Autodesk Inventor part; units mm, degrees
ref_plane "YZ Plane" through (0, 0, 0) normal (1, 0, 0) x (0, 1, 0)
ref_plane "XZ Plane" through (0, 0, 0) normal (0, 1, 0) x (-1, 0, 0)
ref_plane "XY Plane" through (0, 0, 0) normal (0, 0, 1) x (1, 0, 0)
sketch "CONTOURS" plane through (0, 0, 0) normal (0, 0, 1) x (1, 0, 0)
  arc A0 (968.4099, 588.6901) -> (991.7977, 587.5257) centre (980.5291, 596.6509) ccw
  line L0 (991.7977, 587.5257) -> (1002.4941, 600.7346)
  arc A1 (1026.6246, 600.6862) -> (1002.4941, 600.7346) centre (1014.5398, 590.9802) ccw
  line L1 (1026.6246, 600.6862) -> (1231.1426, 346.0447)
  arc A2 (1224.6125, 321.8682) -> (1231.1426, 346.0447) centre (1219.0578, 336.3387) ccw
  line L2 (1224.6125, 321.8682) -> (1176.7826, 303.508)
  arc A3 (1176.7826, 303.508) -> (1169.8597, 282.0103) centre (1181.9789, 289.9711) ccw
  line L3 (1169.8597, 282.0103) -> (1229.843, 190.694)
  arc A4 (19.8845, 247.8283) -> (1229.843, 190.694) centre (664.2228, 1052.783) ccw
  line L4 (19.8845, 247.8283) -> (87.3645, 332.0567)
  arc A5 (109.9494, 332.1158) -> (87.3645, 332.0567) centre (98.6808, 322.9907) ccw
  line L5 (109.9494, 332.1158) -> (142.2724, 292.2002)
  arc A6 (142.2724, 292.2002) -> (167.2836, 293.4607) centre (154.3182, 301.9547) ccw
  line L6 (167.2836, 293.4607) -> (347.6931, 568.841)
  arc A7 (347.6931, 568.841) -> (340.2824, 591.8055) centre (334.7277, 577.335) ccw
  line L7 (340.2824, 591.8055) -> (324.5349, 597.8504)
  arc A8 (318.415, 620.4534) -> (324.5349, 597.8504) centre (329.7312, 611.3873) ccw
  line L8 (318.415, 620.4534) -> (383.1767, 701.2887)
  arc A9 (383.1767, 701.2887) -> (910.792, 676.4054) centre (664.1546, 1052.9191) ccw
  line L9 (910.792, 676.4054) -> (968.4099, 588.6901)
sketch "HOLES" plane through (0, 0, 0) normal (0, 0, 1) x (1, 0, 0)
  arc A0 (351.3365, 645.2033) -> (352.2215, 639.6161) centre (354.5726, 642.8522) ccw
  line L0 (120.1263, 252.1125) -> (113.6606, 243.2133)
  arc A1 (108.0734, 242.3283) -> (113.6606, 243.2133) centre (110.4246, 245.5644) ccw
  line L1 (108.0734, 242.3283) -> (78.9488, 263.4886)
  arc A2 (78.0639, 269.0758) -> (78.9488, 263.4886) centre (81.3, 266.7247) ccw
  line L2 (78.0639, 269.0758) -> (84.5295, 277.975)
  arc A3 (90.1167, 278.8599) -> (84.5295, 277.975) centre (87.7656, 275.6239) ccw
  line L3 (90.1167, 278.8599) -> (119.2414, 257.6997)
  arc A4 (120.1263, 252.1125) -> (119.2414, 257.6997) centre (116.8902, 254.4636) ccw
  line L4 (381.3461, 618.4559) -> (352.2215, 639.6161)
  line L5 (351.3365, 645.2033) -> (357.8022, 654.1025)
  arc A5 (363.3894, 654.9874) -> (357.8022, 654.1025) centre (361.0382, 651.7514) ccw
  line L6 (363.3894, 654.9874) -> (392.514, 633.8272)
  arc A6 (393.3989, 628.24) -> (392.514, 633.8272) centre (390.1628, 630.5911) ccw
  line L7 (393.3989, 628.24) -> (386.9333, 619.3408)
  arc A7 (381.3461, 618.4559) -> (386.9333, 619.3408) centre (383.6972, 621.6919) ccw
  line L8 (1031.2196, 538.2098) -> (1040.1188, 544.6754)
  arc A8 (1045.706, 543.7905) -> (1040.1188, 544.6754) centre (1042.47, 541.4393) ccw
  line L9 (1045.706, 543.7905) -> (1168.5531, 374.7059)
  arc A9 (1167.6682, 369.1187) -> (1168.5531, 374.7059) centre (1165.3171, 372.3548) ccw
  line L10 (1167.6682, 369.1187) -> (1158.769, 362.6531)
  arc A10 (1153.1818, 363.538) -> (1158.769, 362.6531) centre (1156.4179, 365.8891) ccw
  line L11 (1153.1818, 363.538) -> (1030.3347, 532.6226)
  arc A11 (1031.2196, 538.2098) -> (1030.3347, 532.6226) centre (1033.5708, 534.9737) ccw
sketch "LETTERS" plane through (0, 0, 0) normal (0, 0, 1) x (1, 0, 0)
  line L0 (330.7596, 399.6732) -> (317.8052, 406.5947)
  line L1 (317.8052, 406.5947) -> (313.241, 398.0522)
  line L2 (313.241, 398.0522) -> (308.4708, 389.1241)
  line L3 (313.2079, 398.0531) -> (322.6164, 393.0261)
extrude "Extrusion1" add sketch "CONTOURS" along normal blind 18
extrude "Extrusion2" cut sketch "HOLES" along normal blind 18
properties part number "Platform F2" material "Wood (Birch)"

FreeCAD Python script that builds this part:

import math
import FreeCAD as App
import Part
import Sketcher
Q = App.Units.Quantity

doc = App.newDocument("Part")
body = doc.addObject("PartDesign::Body", "Body")

sketch1 = body.newObject("Sketcher::SketchObject", "Sketch")
sketch1.AttachmentSupport = (doc.getObject("XY_Plane"), [""])
sketch1.MapMode = "FlatFace"
sketch1.addGeometry([
    Part.ArcOfCircle(Part.Circle(App.Vector(981, 597, 0), App.Vector(0, 0, 1), 14), math.radians(-147), math.radians(-39)),
    Part.LineSegment(App.Vector(968, 589, 0), App.Vector(911, 676, 0)),
    Part.ArcOfCircle(Part.Circle(App.Vector(664, 1053, 0), App.Vector(0, 0, 1), 450), math.radians(-129), math.radians(-57)),
    Part.LineSegment(App.Vector(383, 701, 0), App.Vector(318, 620, 0)),
    Part.ArcOfCircle(Part.Circle(App.Vector(330, 611, 0), App.Vector(0, 0, 1), 15), math.radians(141), math.radians(249)),
    Part.LineSegment(App.Vector(325, 598, 0), App.Vector(340, 592, 0)),
    Part.ArcOfCircle(Part.Circle(App.Vector(335, 577, 0), App.Vector(0, 0, 1), 15), math.radians(-33), math.radians(69)),
    Part.LineSegment(App.Vector(348, 569, 0), App.Vector(167, 293, 0)),
    Part.ArcOfCircle(Part.Circle(App.Vector(154, 302, 0), App.Vector(0, 0, 1), 16), math.radians(-141), math.radians(-33)),
    Part.LineSegment(App.Vector(142, 292, 0), App.Vector(110, 332, 0)),
    Part.ArcOfCircle(Part.Circle(App.Vector(99, 323, 0), App.Vector(0, 0, 1), 14), math.radians(39), math.radians(141)),
    Part.LineSegment(App.Vector(87, 332, 0), App.Vector(20, 248, 0)),
    Part.ArcOfCircle(Part.Circle(App.Vector(664, 1053, 0), App.Vector(0, 0, 1), 1031), math.radians(-129), math.radians(-57)),
    Part.LineSegment(App.Vector(1230, 191, 0), App.Vector(1170, 282, 0)),
    Part.ArcOfCircle(Part.Circle(App.Vector(1182, 290, 0), App.Vector(0, 0, 1), 14), math.radians(111), math.radians(213)),
    Part.LineSegment(App.Vector(1177, 304, 0), App.Vector(1225, 322, 0)),
    Part.ArcOfCircle(Part.Circle(App.Vector(1219, 336, 0), App.Vector(0, 0, 1), 16), math.radians(-69), math.radians(39)),
    Part.LineSegment(App.Vector(1231, 346, 0), App.Vector(1027, 601, 0)),
    Part.ArcOfCircle(Part.Circle(App.Vector(1015, 591, 0), App.Vector(0, 0, 1), 15), math.radians(39), math.radians(141)),
    Part.LineSegment(App.Vector(1002, 601, 0), App.Vector(992, 588, 0)),
], False)
sketch1.addConstraint([
    Sketcher.Constraint("Tangent", 0, 1, 1, 1),
    Sketcher.Constraint("Coincident", 1, 2, 2, 2),
    Sketcher.Constraint("Coincident", 2, 1, 3, 1),
    Sketcher.Constraint("Tangent", 3, 2, 4, 1),
    Sketcher.Constraint("Tangent", 4, 2, 5, 1),
    Sketcher.Constraint("Tangent", 5, 2, 6, 2),
    Sketcher.Constraint("Tangent", 6, 1, 7, 1),
    Sketcher.Constraint("Tangent", 7, 2, 8, 2),
    Sketcher.Constraint("Tangent", 8, 1, 9, 1),
    Sketcher.Constraint("Tangent", 9, 2, 10, 1),
    Sketcher.Constraint("Tangent", 10, 2, 11, 1),
    Sketcher.Constraint("Coincident", 11, 2, 12, 1),
    Sketcher.Constraint("Coincident", 12, 2, 13, 1),
    Sketcher.Constraint("Tangent", 13, 2, 14, 2),
    Sketcher.Constraint("Tangent", 14, 1, 15, 1),
    Sketcher.Constraint("Tangent", 15, 2, 16, 1),
    Sketcher.Constraint("Tangent", 16, 2, 17, 1),
    Sketcher.Constraint("Tangent", 17, 2, 18, 1),
    Sketcher.Constraint("Tangent", 18, 2, 19, 1),
    Sketcher.Constraint("Tangent", 19, 2, 0, 2),
    Sketcher.Constraint("Equal", 0, 4),
    Sketcher.Constraint("Equal", 6, 8),
    Sketcher.Constraint("Equal", 4, 10),
    Sketcher.Constraint("Equal", 10, 14),
    Sketcher.Constraint("Equal", 8, 16),
    Sketcher.Constraint("Equal", 16, 18),
    Sketcher.Constraint("Parallel", 3, 11),
    Sketcher.Constraint("Parallel", 1, 13),
    Sketcher.Constraint("Radius", 0, 14.5),
    Sketcher.Constraint("Radius", 6, 15.5),
    Sketcher.Constraint("Angle", 5, Q("-21 deg")),
    Sketcher.Constraint("Angle", 9, Q("129 deg")),
    Sketcher.Constraint("Angle", 15, Q("21 deg")),
    Sketcher.Constraint("Angle", 19, Q("-129 deg")),
    Sketcher.Constraint("Angle", 1, Q("123.2999 deg")),
    Sketcher.Constraint("Angle", 3, Q("-128.7002 deg")),
    Sketcher.Constraint("Radius", 12, 1031.079),
    Sketcher.Constraint("Angle", 7, Q("-123.23 deg")),
    Sketcher.Constraint("Angle", 17, Q("128.77 deg")),
    Sketcher.Constraint("Radius", 2, 450.1028),
    Sketcher.Constraint("DistanceX", -1, 1, 0, 1, 968.41),
    Sketcher.Constraint("DistanceY", -1, 1, 0, 1, 588.69),
    Sketcher.Constraint("DistanceX", 6, 3, 16, 3, 884.33),
    Sketcher.Constraint("DistanceX", 0, 1, 18, 3, 46.13),
    Sketcher.Constraint("DistanceY", 7, 2, 10, 3, 29.53),
    Sketcher.Constraint("DistanceX", 11, 2, 10, 2, 67.48),
    Sketcher.Constraint("DistanceX", 18, 3, 13, 2, 155.32),
    Sketcher.Constraint("DistanceY", 13, 2, 18, 3, 308.97),
    Sketcher.Constraint("Distance", 3, 103.578),
    Sketcher.Constraint("Distance", 7, 329.214),
    Sketcher.Constraint("Distance", 13, 109.255),
    Sketcher.Constraint("DistanceY", -1, 1, 2, 3, 1052.919),
    Sketcher.Constraint("DistanceY", -1, 1, 6, 3, 577.335),
    Sketcher.Constraint("DistanceX", -1, 1, 1, 2, 910.792),
])
pad1 = body.newObject("PartDesign::Pad", "Pad")
pad1.Profile = sketch1
pad1.Length = 18

sketch2 = body.newObject("Sketcher::SketchObject", "Sketch001")
sketch2.AttachmentSupport = (doc.getObject("XY_Plane"), [""])
sketch2.MapMode = "FlatFace"
sketch2.addGeometry([
    Part.LineSegment(App.Vector(357.8, 654.1, 0), App.Vector(351.3, 645.2, 0)),
    Part.ArcOfCircle(Part.Circle(App.Vector(354.6, 642.9, 0), App.Vector(0, 0, 1), 4), math.radians(144), math.radians(234)),
    Part.LineSegment(App.Vector(352.2, 639.6, 0), App.Vector(381.3, 618.5, 0)),
    Part.ArcOfCircle(Part.Circle(App.Vector(383.7, 621.7, 0), App.Vector(0, 0, 1), 4), math.radians(-126), math.radians(-36)),
    Part.LineSegment(App.Vector(386.9, 619.3, 0), App.Vector(393.4, 628.2, 0)),
    Part.ArcOfCircle(Part.Circle(App.Vector(390.2, 630.6, 0), App.Vector(0, 0, 1), 4), math.radians(-36), math.radians(54)),
    Part.LineSegment(App.Vector(392.5, 633.8, 0), App.Vector(363.4, 655, 0)),
    Part.ArcOfCircle(Part.Circle(App.Vector(361, 651.8, 0), App.Vector(0, 0, 1), 4), math.radians(54), math.radians(144)),
    Part.LineSegment(App.Vector(113.7, 243.2, 0), App.Vector(120.1, 252.1, 0)),
    Part.ArcOfCircle(Part.Circle(App.Vector(116.9, 254.5, 0), App.Vector(0, 0, 1), 4), math.radians(-36), math.radians(54)),
    Part.LineSegment(App.Vector(119.2, 257.7, 0), App.Vector(90.1, 278.9, 0)),
    Part.ArcOfCircle(Part.Circle(App.Vector(87.8, 275.6, 0), App.Vector(0, 0, 1), 4), math.radians(54), math.radians(144)),
    Part.LineSegment(App.Vector(84.5, 278, 0), App.Vector(78.1, 269.1, 0)),
    Part.ArcOfCircle(Part.Circle(App.Vector(81.3, 266.7, 0), App.Vector(0, 0, 1), 4), math.radians(144), math.radians(234)),
    Part.LineSegment(App.Vector(78.9, 263.5, 0), App.Vector(108.1, 242.3, 0)),
    Part.ArcOfCircle(Part.Circle(App.Vector(110.4, 245.6, 0), App.Vector(0, 0, 1), 4), math.radians(-126), math.radians(-36)),
    Part.LineSegment(App.Vector(1040.1, 544.7, 0), App.Vector(1031.2, 538.2, 0)),
    Part.ArcOfCircle(Part.Circle(App.Vector(1033.6, 535, 0), App.Vector(0, 0, 1), 4), math.radians(126), math.radians(216)),
    Part.LineSegment(App.Vector(1030.3, 532.6, 0), App.Vector(1153.2, 363.5, 0)),
    Part.ArcOfCircle(Part.Circle(App.Vector(1156.4, 365.9, 0), App.Vector(0, 0, 1), 4), math.radians(-144), math.radians(-54)),
    Part.LineSegment(App.Vector(1158.8, 362.7, 0), App.Vector(1167.7, 369.1, 0)),
    Part.ArcOfCircle(Part.Circle(App.Vector(1165.3, 372.4, 0), App.Vector(0, 0, 1), 4), math.radians(-54), math.radians(36)),
    Part.LineSegment(App.Vector(1168.6, 374.7, 0), App.Vector(1045.7, 543.8, 0)),
    Part.ArcOfCircle(Part.Circle(App.Vector(1042.5, 541.4, 0), App.Vector(0, 0, 1), 4), math.radians(36), math.radians(126)),
], False)
sketch2.addConstraint([
    Sketcher.Constraint("Tangent", 0, 2, 1, 1),
    Sketcher.Constraint("Tangent", 1, 2, 2, 1),
    Sketcher.Constraint("Tangent", 2, 2, 3, 1),
    Sketcher.Constraint("Tangent", 3, 2, 4, 1),
    Sketcher.Constraint("Tangent", 4, 2, 5, 1),
    Sketcher.Constraint("Tangent", 5, 2, 6, 1),
    Sketcher.Constraint("Tangent", 6, 2, 7, 1),
    Sketcher.Constraint("Tangent", 7, 2, 0, 1),
    Sketcher.Constraint("Tangent", 8, 2, 9, 1),
    Sketcher.Constraint("Tangent", 9, 2, 10, 1),
    Sketcher.Constraint("Tangent", 10, 2, 11, 1),
    Sketcher.Constraint("Tangent", 11, 2, 12, 1),
    Sketcher.Constraint("Tangent", 12, 2, 13, 1),
    Sketcher.Constraint("Tangent", 13, 2, 14, 1),
    Sketcher.Constraint("Tangent", 14, 2, 15, 1),
    Sketcher.Constraint("Tangent", 15, 2, 8, 1),
    Sketcher.Constraint("Tangent", 16, 2, 17, 1),
    Sketcher.Constraint("Tangent", 17, 2, 18, 1),
    Sketcher.Constraint("Tangent", 18, 2, 19, 1),
    Sketcher.Constraint("Tangent", 19, 2, 20, 1),
    Sketcher.Constraint("Tangent", 20, 2, 21, 1),
    Sketcher.Constraint("Tangent", 21, 2, 22, 1),
    Sketcher.Constraint("Tangent", 22, 2, 23, 1),
    Sketcher.Constraint("Tangent", 23, 2, 16, 1),
    Sketcher.Constraint("Equal", 1, 3),
    Sketcher.Constraint("Equal", 3, 5),
    Sketcher.Constraint("Equal", 5, 7),
    Sketcher.Constraint("Equal", 7, 9),
    Sketcher.Constraint("Equal", 9, 11),
    Sketcher.Constraint("Equal", 11, 13),
    Sketcher.Constraint("Equal", 13, 15),
    Sketcher.Constraint("Equal", 15, 17),
    Sketcher.Constraint("Equal", 17, 19),
    Sketcher.Constraint("Equal", 19, 21),
    Sketcher.Constraint("Equal", 21, 23),
    Sketcher.Constraint("Perpendicular", 0, 2),
    Sketcher.Constraint("Perpendicular", 2, 4),
    Sketcher.Constraint("Perpendicular", 4, 6),
    Sketcher.Constraint("Perpendicular", 6, 8),
    Sketcher.Constraint("Perpendicular", 8, 10),
    Sketcher.Constraint("Perpendicular", 10, 12),
    Sketcher.Constraint("Perpendicular", 12, 14),
    Sketcher.Constraint("Perpendicular", 16, 18),
    Sketcher.Constraint("Perpendicular", 18, 20),
    Sketcher.Constraint("Perpendicular", 20, 22),
    Sketcher.Constraint("Equal", 4, 8),
    Sketcher.Constraint("Equal", 6, 10),
    Sketcher.Constraint("Equal", 12, 16),
    Sketcher.Constraint("Radius", 1, 4.0),
    Sketcher.Constraint("Angle", 0, Q("-126.0002 deg")),
    Sketcher.Constraint("Angle", 16, Q("-144.0002 deg")),
    Sketcher.Constraint("Distance", 0, 11.0),
    Sketcher.Constraint("Distance", 2, 36.0),
    Sketcher.Constraint("Distance", 18, 209.0),
    Sketcher.Constraint("DistanceX", -1, 1, 13, 3, 81.3),
    Sketcher.Constraint("DistanceX", -1, 1, 23, 3, 1042.47),
    Sketcher.Constraint("DistanceY", -1, 1, 4, 2, 628.24),
    Sketcher.Constraint("DistanceY", -1, 1, 10, 2, 278.86),
    Sketcher.Constraint("DistanceY", 9, 3, 17, 3, 280.51),
    Sketcher.Constraint("DistanceX", 3, 3, 21, 3, 781.62),
])
pocket1 = body.newObject("PartDesign::Pocket", "Pocket")
pocket1.Profile = sketch2
pocket1.Length = 18
pocket1.Reversed = True

doc.recompute()
